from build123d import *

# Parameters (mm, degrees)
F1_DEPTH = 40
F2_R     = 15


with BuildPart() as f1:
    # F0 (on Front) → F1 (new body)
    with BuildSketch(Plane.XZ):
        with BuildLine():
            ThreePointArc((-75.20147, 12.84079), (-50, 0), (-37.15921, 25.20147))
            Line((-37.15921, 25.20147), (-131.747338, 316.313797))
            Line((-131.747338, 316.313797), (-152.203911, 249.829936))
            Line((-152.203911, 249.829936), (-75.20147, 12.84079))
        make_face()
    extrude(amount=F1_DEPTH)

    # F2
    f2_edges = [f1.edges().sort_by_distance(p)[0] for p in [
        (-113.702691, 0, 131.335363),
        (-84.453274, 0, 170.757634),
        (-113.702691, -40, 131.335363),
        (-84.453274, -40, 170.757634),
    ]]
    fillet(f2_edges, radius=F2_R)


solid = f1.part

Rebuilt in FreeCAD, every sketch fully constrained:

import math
import FreeCAD as App
import Part
import Sketcher
from FreeCAD import Vector
Q = App.Units.Quantity


def edges_at(feature, points):
    """Names of the edges that pass closest to the given points."""
    edges = feature.Shape.Edges
    near = lambda p: min(range(len(edges)), key=lambda i: edges[i].distToShape(Part.Vertex(*p))[0])
    return sorted({f"Edge{near(p) + 1}" for p in points})

doc = App.newDocument("Part")
params = doc.addObject("Spreadsheet::Sheet", "Params")
for row, (alias, value) in enumerate([
    ("sketch1_radius", "20 mm"),
    ("pad1_length", "40 mm"),
    ("fillet_radius", "15 mm"),
], start=1):
    params.set(f"A{row}", alias)
    params.set(f"B{row}", "=" + value)
    params.setAlias(f"B{row}", alias)

body = doc.addObject("PartDesign::Body", "Body")

sketch1 = doc.addObject("Sketcher::SketchObject", "Sketch")
body.addObject(sketch1)
sketch1.AttachmentSupport = (doc.XZ_Plane, [""])
sketch1.MapMode = "FlatFace"
sketch1.addGeometry([
    Part.ArcOfCircle(Part.Circle(Vector(-56, 19, 0), Vector(0, 0, 1), 20), math.radians(-162), math.radians(18)),
    Part.LineSegment(Vector(-37, 25, 0), Vector(-132, 316, 0)),
    Part.LineSegment(Vector(-132, 316, 0), Vector(-152, 250, 0)),
    Part.LineSegment(Vector(-152, 250, 0), Vector(-75, 13, 0)),
], False)
sketch1.addConstraint([
    Sketcher.Constraint("Tangent", 0, 2, 1, 1),
    Sketcher.Constraint("Coincident", 1, 2, 2, 1),
    Sketcher.Constraint("Coincident", 2, 2, 3, 1),
    Sketcher.Constraint("Tangent", 3, 2, 0, 1),
    Sketcher.Constraint("Parallel", 1, 3),
    Sketcher.Constraint("Radius", 0, 20.0),
    Sketcher.Constraint("Angle", 1, Q("108 deg")),
    Sketcher.Constraint("DistanceX", 1, 2, 0, 3, 75.566998),
    Sketcher.Constraint("DistanceX", 2, 2, 0, 2, 115.044701),
    Sketcher.Constraint("DistanceX", 0, 3, -1, 1, 56.18034),
    Sketcher.Constraint("DistanceY", -1, 1, 0, 3, 19.02113),
])
sketch1.setExpression("Constraints[5]", "Params.sketch1_radius")
pad1 = doc.addObject("PartDesign::Pad", "Pad")
body.addObject(pad1)
pad1.Profile = sketch1
pad1.setExpression("Length", "Params.pad1_length")
doc.recompute()

fillet = doc.addObject("PartDesign::Fillet", "Fillet")
body.addObject(fillet)
fillet.Base = (pad1, edges_at(pad1, [
    (-113.703, 0, 131.335),
    (-84.453, 0, 170.758),
    (-113.703, -40, 131.335),
    (-84.453, -40, 170.758),
]))
fillet.setExpression("Radius", "Params.fillet_radius")

doc.recompute()
